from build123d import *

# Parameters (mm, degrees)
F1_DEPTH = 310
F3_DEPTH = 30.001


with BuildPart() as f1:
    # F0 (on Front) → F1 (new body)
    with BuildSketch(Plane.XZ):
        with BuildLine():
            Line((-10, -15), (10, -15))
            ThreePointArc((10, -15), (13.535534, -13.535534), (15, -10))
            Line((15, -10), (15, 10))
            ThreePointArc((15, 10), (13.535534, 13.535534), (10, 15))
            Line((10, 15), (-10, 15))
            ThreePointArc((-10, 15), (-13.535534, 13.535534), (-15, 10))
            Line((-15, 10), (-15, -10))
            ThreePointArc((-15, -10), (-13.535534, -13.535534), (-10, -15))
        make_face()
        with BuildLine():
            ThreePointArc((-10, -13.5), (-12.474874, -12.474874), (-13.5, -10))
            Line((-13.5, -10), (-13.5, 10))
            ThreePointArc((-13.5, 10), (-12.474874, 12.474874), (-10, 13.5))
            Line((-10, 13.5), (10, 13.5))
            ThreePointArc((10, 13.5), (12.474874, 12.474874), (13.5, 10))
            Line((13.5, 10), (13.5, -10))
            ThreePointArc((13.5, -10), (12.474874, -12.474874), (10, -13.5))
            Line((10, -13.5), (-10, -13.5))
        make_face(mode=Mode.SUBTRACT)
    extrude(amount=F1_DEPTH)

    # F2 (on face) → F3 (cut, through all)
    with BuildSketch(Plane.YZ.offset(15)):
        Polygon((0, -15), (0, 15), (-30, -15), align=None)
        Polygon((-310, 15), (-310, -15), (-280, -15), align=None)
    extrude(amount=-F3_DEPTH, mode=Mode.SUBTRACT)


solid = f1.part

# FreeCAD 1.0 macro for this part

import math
import FreeCAD as App
import Part
import Sketcher

V = App.Vector
Q = App.Units.Quantity


def add_polygon(sketch, points):
    """Adds a closed chain of lines whose ends are joined by coincident constraints."""
    first, n = sketch.GeometryCount, len(points)
    for a, b in zip(points, points[1:] + points[:1]):
        sketch.addGeometry(Part.LineSegment(App.Vector(*a, 0), App.Vector(*b, 0)), False)
    for i in range(n):
        sketch.addConstraint(Sketcher.Constraint("Coincident", first + i, 2, first + (i + 1) % n, 1))

doc = App.newDocument("Part")
body = doc.addObject("PartDesign::Body", "Body")

sketch1 = doc.addObject("Sketcher::SketchObject", "Sketch")
body.addObject(sketch1)
sketch1.AttachmentSupport = (doc.XZ_Plane, [""])
sketch1.MapMode = "FlatFace"
sketch1.addGeometry([
    Part.LineSegment(V(-10, -15, 0), V(10, -15, 0)),
    Part.ArcOfCircle(Part.Circle(V(10, -10, 0), V(0, 0, 1), 5), math.radians(-90), math.radians(0)),
    Part.LineSegment(V(15, -10, 0), V(15, 10, 0)),
    Part.ArcOfCircle(Part.Circle(V(10, 10, 0), V(0, 0, 1), 5), math.radians(0), math.radians(90)),
    Part.LineSegment(V(10, 15, 0), V(-10, 15, 0)),
    Part.ArcOfCircle(Part.Circle(V(-10, 10, 0), V(0, 0, 1), 5), math.radians(90), math.radians(180)),
    Part.LineSegment(V(-15, 10, 0), V(-15, -10, 0)),
    Part.ArcOfCircle(Part.Circle(V(-10, -10, 0), V(0, 0, 1), 5), math.radians(180), math.radians(270)),
    Part.LineSegment(V(10, -13.5, 0), V(-10, -13.5, 0)),
    Part.ArcOfCircle(Part.Circle(V(-10, -10, 0), V(0, 0, 1), 3.5), math.radians(180), math.radians(270)),
    Part.LineSegment(V(-13.5, -10, 0), V(-13.5, 10, 0)),
    Part.ArcOfCircle(Part.Circle(V(-10, 10, 0), V(0, 0, 1), 3.5), math.radians(90), math.radians(180)),
    Part.LineSegment(V(-10, 13.5, 0), V(10, 13.5, 0)),
    Part.ArcOfCircle(Part.Circle(V(10, 10, 0), V(0, 0, 1), 3.5), math.radians(0), math.radians(90)),
    Part.LineSegment(V(13.5, 10, 0), V(13.5, -10, 0)),
    Part.ArcOfCircle(Part.Circle(V(10, -10, 0), V(0, 0, 1), 3.5), math.radians(-90), math.radians(0)),
], False)
sketch1.addConstraint([
    Sketcher.Constraint("Tangent", 0, 2, 1, 1),
    Sketcher.Constraint("Tangent", 1, 2, 2, 1),
    Sketcher.Constraint("Tangent", 2, 2, 3, 1),
    Sketcher.Constraint("Tangent", 3, 2, 4, 1),
    Sketcher.Constraint("Tangent", 4, 2, 5, 1),
    Sketcher.Constraint("Tangent", 5, 2, 6, 1),
    Sketcher.Constraint("Tangent", 6, 2, 7, 1),
    Sketcher.Constraint("Tangent", 7, 2, 0, 1),
    Sketcher.Constraint("Tangent", 8, 2, 9, 2),
    Sketcher.Constraint("Tangent", 9, 1, 10, 1),
    Sketcher.Constraint("Tangent", 10, 2, 11, 2),
    Sketcher.Constraint("Tangent", 11, 1, 12, 1),
    Sketcher.Constraint("Tangent", 12, 2, 13, 2),
    Sketcher.Constraint("Tangent", 13, 1, 14, 1),
    Sketcher.Constraint("Tangent", 14, 2, 15, 2),
    Sketcher.Constraint("Tangent", 15, 1, 8, 1),
    Sketcher.Constraint("Horizontal", 0),
    Sketcher.Constraint("Vertical", 2),
    Sketcher.Constraint("Horizontal", 4),
    Sketcher.Constraint("Vertical", 6),
    Sketcher.Constraint("Horizontal", 8),
    Sketcher.Constraint("Vertical", 10),
    Sketcher.Constraint("Horizontal", 12),
    Sketcher.Constraint("Vertical", 14),
    Sketcher.Constraint("Coincident", 9, 3, 7, 3),
    Sketcher.Constraint("Coincident", 11, 3, 5, 3),
    Sketcher.Constraint("Coincident", 13, 3, 3, 3),
    Sketcher.Constraint("Equal", 1, 3),
    Sketcher.Constraint("Equal", 3, 5),
    Sketcher.Constraint("Equal", 5, 7),
    Sketcher.Constraint("Equal", 13, 15),
    Sketcher.Constraint("Symmetric", 1, 3, 5, 3, -1, 1),
    Sketcher.Constraint("Equal", 12, 2),
    Sketcher.Constraint("Radius", 1, Q("5 mm")),
    Sketcher.Constraint("Radius", 9, Q("3.499999 mm")),
    Sketcher.Constraint("DistanceX", 0, 1, 0, 2, Q("20 mm")),
])
pad1 = doc.addObject("PartDesign::Pad", "Pad")
body.addObject(pad1)
pad1.Profile = sketch1
pad1.Length = 310

sketch2 = doc.addObject("Sketcher::SketchObject", "Sketch001")
body.addObject(sketch2)
sketch2.AttachmentSupport = (doc.YZ_Plane, [""])
sketch2.MapMode = "FlatFace"
sketch2.AttachmentOffset = App.Placement(V(0, 0, 15), App.Rotation())
add_polygon(sketch2, [(0, -15), (0, 15), (-30, -15)])
add_polygon(sketch2, [(-310, 15), (-310, -15), (-280, -15)])
sketch2.addConstraint([
    Sketcher.Constraint("Vertical", 0),
    Sketcher.Constraint("Horizontal", 2),
    Sketcher.Constraint("Vertical", 3),
    Sketcher.Constraint("Horizontal", 4),
    Sketcher.Constraint("Symmetric", 0, 2, 2, 2, -1, 1),
    Sketcher.Constraint("Perpendicular", 1, 5),
    Sketcher.Constraint("Horizontal", 2, 2, 3, 2),
    Sketcher.Constraint("Horizontal", 0, 2, 5, 2),
    Sketcher.Constraint("Equal", 2, 4),
    Sketcher.Constraint("DistanceX", 2, 1, 2, 2, Q("30 mm")),
    Sketcher.Constraint("DistanceX", 3, 2, -1, 1, Q("310 mm")),
])
pocket1 = doc.addObject("PartDesign::Pocket", "Pocket")
body.addObject(pocket1)
pocket1.Profile = sketch2
pocket1.Type = "ThroughAll"

doc.recompute()
